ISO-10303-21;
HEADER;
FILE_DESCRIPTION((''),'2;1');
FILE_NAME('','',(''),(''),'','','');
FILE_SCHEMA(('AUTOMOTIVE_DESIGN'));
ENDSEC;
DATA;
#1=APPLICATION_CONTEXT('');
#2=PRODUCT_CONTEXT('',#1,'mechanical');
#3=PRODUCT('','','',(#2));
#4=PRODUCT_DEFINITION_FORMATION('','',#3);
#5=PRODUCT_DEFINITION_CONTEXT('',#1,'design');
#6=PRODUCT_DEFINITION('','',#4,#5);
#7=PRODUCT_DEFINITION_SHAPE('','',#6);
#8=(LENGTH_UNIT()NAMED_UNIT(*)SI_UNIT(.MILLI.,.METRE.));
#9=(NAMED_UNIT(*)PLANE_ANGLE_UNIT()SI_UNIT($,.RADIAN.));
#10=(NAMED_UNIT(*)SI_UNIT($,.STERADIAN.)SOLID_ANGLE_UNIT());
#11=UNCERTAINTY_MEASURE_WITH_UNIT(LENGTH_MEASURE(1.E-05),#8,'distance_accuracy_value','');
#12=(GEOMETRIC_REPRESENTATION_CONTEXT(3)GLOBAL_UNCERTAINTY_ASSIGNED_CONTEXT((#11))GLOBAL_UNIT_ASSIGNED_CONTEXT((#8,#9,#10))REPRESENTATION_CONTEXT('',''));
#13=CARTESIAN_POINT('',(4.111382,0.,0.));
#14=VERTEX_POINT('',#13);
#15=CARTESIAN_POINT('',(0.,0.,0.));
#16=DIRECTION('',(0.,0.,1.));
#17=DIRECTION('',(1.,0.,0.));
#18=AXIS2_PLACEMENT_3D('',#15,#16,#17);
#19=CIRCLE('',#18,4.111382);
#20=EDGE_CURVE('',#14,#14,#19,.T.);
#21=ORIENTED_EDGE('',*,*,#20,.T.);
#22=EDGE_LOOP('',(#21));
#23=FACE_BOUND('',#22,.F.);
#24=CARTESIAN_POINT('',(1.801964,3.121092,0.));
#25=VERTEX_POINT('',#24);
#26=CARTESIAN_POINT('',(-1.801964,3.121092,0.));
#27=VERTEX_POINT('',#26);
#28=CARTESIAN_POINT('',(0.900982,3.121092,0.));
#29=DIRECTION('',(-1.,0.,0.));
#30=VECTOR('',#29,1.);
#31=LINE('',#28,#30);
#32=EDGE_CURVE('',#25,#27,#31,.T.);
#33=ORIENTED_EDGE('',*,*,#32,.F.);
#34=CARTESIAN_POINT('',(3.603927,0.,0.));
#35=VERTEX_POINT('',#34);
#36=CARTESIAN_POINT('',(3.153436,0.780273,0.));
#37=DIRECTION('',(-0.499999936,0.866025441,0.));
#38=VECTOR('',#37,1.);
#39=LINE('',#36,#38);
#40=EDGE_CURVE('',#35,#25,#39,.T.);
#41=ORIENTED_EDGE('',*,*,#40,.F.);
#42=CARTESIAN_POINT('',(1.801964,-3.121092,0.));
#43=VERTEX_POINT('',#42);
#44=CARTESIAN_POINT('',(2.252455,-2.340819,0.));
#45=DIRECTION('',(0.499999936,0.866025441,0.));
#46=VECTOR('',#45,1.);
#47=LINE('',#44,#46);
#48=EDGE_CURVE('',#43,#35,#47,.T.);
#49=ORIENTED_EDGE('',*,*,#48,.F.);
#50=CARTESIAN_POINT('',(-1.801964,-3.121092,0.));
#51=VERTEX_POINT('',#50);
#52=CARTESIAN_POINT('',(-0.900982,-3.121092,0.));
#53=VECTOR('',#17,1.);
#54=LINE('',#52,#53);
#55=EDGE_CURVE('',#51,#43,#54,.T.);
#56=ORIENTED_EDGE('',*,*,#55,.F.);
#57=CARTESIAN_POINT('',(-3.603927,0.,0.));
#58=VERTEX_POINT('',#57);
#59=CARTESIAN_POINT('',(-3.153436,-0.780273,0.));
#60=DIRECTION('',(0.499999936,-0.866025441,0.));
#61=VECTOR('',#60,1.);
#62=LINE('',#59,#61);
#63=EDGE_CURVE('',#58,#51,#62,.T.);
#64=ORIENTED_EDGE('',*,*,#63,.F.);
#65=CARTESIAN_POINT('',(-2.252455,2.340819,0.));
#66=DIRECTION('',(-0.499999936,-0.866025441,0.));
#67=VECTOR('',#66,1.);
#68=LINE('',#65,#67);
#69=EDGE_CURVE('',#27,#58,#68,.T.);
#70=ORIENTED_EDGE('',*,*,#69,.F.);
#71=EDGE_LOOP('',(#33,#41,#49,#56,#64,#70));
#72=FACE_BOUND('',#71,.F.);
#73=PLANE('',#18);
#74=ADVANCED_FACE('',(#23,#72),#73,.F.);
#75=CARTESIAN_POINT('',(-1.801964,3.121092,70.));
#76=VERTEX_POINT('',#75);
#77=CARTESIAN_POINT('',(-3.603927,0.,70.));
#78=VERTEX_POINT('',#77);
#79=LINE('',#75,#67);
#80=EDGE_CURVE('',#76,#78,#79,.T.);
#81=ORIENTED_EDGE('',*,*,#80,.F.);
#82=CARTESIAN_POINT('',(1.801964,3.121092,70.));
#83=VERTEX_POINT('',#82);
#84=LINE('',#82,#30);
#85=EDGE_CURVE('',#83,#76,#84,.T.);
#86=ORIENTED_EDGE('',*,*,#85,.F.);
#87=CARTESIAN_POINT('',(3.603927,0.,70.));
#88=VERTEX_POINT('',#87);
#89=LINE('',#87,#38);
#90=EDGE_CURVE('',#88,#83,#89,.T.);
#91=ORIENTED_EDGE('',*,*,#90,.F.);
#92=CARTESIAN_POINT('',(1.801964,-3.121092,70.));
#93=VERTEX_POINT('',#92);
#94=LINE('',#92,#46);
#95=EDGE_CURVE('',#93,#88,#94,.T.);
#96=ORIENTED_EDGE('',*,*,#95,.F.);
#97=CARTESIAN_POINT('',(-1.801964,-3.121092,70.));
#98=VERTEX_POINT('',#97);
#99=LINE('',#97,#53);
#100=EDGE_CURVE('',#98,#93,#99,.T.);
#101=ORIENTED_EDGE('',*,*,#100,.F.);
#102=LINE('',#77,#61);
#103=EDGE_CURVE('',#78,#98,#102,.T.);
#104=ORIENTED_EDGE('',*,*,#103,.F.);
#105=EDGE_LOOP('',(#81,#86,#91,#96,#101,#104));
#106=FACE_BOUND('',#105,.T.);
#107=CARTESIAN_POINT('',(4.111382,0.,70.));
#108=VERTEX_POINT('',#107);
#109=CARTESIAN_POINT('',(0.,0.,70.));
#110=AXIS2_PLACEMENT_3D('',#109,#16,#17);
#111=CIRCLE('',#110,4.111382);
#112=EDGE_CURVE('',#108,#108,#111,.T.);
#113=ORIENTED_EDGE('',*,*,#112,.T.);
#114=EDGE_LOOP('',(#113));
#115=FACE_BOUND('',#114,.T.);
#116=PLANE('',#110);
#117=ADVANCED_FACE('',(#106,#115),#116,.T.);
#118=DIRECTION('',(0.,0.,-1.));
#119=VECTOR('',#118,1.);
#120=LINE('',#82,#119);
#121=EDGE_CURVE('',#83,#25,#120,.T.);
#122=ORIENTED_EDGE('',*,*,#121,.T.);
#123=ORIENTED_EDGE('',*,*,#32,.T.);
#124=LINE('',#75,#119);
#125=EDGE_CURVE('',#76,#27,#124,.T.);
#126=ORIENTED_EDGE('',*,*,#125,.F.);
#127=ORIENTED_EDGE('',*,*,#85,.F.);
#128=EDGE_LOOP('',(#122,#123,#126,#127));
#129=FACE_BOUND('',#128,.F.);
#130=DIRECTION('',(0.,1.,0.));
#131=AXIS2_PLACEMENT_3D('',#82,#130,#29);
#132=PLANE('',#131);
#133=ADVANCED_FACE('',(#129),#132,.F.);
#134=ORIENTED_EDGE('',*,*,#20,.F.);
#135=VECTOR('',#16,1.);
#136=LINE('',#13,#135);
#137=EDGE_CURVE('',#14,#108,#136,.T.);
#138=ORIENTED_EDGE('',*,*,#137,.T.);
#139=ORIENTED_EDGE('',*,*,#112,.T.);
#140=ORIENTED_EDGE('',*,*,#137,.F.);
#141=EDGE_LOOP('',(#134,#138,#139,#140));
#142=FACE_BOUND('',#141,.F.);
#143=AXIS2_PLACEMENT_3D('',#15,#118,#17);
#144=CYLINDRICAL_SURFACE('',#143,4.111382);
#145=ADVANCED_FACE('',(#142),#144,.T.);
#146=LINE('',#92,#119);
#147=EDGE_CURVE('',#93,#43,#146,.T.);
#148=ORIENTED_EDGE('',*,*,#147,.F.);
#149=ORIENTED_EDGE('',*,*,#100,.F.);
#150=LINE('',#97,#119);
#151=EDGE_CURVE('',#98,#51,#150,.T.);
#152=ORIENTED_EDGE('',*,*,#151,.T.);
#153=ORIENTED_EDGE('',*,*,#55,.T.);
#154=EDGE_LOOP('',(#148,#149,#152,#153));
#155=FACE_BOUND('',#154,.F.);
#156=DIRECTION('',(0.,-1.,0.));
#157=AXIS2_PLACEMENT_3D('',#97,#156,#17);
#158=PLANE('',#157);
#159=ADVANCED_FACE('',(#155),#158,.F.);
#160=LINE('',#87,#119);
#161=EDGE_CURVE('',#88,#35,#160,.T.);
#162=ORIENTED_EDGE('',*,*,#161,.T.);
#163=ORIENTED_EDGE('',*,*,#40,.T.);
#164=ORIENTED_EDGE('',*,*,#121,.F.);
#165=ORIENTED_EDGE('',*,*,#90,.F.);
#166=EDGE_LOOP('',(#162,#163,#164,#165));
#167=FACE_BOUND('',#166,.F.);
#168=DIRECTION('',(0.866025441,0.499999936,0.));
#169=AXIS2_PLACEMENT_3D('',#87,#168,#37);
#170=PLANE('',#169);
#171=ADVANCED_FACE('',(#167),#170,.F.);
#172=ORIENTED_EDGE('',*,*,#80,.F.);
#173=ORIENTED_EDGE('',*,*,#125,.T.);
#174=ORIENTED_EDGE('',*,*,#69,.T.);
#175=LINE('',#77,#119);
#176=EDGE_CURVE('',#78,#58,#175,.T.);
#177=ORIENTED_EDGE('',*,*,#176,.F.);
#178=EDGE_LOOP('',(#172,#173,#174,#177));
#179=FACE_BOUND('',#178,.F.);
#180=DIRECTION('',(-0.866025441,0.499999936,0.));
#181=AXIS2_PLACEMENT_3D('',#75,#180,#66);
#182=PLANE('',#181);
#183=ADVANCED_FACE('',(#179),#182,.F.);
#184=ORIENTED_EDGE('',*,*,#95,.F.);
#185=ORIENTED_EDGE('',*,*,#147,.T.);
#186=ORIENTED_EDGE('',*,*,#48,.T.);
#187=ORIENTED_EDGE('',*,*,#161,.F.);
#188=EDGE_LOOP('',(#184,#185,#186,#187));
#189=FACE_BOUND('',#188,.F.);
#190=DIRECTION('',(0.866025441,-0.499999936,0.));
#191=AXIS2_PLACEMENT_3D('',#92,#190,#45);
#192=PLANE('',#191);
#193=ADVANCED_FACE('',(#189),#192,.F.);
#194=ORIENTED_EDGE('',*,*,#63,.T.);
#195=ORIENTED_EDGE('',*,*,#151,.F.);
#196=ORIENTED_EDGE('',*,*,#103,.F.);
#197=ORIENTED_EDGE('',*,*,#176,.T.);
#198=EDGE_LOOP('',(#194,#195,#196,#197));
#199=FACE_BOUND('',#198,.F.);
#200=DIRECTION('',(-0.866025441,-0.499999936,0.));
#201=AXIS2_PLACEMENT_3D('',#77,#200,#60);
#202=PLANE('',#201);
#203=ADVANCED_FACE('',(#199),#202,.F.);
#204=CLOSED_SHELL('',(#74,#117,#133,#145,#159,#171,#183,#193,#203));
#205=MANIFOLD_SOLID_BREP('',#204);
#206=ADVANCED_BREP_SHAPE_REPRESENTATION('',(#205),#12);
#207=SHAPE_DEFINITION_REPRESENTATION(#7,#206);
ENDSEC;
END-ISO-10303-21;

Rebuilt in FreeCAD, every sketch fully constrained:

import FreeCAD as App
import Part
import Sketcher
from FreeCAD import Vector
Q = App.Units.Quantity

doc = App.newDocument("Part")
body = doc.addObject("PartDesign::Body", "Body")

# Sketch on XY plane
sketch1 = doc.addObject("Sketcher::SketchObject", "Sketch")
body.addObject(sketch1)
sketch1.AttachmentSupport = (doc.XY_Plane, [""])
sketch1.MapMode = "FlatFace"
sketch1.addGeometry(Part.Circle(Vector(0, 0, 0), Vector(0, 0, 1), 4.111382), False)
sketch1.addConstraint([
    Sketcher.Constraint("Coincident", 0, 3, -1, 1),
    Sketcher.Constraint("Diameter", 0, 8.222764),
])
pad1 = doc.addObject("PartDesign::Pad", "Pad")
body.addObject(pad1)
pad1.Profile = sketch1
pad1.Length = 70

# Sketch on XY plane
sketch2 = doc.addObject("Sketcher::SketchObject", "Sketch001")
body.addObject(sketch2)
sketch2.AttachmentSupport = (doc.XY_Plane, [""])
sketch2.MapMode = "FlatFace"
sketch2.AttachmentOffset = App.Placement(Vector(0, 0, 70), App.Rotation())
sketch2.addGeometry([
    Part.LineSegment(Vector(-1.801964, -3.121092, 0), Vector(1.801964, -3.121092, 0)),  # 0
    Part.LineSegment(Vector(1.801964, -3.121092, 0), Vector(3.603927, 0, 0)),  # 1
    Part.LineSegment(Vector(3.603927, 0, 0), Vector(1.801964, 3.121092, 0)),  # 2
    Part.LineSegment(Vector(1.801964, 3.121092, 0), Vector(-1.801964, 3.121092, 0)),  # 3
    Part.LineSegment(Vector(-1.801964, 3.121092, 0), Vector(-3.603927, 0, 0)),  # 4
    Part.LineSegment(Vector(-3.603927, 0, 0), Vector(-1.801964, -3.121092, 0)),  # 5
], False)
sketch2.addConstraint([
    Sketcher.Constraint("Coincident", 0, 2, 1, 1),
    Sketcher.Constraint("Coincident", 1, 2, 2, 1),
    Sketcher.Constraint("Coincident", 2, 2, 3, 1),
    Sketcher.Constraint("Coincident", 3, 2, 4, 1),
    Sketcher.Constraint("Coincident", 4, 2, 5, 1),
    Sketcher.Constraint("Coincident", 5, 2, 0, 1),
    Sketcher.Constraint("Horizontal", 0),
    Sketcher.Constraint("Horizontal", 3),
    Sketcher.Constraint("Symmetric", 0, 2, 3, 2, -1, 1),
    Sketcher.Constraint("Symmetric", 1, 2, 4, 2, -1, 1),
    Sketcher.Constraint("PointOnObject", 1, 2, -1),
    Sketcher.Constraint("Parallel", 2, 5),
    Sketcher.Constraint("Vertical", 0, 2, 2, 2),
    Sketcher.Constraint("Angle", 1, Q("60.000004 deg")),
    Sketcher.Constraint("DistanceX", 0, 1, 0, 2, 3.603928),
    Sketcher.Constraint("DistanceY", 0, 2, -1, 1, 3.121092),
])
pocket1 = doc.addObject("PartDesign::Pocket", "Pocket")
body.addObject(pocket1)
pocket1.Profile = sketch2
pocket1.Type = "ThroughAll"

doc.recompute()
